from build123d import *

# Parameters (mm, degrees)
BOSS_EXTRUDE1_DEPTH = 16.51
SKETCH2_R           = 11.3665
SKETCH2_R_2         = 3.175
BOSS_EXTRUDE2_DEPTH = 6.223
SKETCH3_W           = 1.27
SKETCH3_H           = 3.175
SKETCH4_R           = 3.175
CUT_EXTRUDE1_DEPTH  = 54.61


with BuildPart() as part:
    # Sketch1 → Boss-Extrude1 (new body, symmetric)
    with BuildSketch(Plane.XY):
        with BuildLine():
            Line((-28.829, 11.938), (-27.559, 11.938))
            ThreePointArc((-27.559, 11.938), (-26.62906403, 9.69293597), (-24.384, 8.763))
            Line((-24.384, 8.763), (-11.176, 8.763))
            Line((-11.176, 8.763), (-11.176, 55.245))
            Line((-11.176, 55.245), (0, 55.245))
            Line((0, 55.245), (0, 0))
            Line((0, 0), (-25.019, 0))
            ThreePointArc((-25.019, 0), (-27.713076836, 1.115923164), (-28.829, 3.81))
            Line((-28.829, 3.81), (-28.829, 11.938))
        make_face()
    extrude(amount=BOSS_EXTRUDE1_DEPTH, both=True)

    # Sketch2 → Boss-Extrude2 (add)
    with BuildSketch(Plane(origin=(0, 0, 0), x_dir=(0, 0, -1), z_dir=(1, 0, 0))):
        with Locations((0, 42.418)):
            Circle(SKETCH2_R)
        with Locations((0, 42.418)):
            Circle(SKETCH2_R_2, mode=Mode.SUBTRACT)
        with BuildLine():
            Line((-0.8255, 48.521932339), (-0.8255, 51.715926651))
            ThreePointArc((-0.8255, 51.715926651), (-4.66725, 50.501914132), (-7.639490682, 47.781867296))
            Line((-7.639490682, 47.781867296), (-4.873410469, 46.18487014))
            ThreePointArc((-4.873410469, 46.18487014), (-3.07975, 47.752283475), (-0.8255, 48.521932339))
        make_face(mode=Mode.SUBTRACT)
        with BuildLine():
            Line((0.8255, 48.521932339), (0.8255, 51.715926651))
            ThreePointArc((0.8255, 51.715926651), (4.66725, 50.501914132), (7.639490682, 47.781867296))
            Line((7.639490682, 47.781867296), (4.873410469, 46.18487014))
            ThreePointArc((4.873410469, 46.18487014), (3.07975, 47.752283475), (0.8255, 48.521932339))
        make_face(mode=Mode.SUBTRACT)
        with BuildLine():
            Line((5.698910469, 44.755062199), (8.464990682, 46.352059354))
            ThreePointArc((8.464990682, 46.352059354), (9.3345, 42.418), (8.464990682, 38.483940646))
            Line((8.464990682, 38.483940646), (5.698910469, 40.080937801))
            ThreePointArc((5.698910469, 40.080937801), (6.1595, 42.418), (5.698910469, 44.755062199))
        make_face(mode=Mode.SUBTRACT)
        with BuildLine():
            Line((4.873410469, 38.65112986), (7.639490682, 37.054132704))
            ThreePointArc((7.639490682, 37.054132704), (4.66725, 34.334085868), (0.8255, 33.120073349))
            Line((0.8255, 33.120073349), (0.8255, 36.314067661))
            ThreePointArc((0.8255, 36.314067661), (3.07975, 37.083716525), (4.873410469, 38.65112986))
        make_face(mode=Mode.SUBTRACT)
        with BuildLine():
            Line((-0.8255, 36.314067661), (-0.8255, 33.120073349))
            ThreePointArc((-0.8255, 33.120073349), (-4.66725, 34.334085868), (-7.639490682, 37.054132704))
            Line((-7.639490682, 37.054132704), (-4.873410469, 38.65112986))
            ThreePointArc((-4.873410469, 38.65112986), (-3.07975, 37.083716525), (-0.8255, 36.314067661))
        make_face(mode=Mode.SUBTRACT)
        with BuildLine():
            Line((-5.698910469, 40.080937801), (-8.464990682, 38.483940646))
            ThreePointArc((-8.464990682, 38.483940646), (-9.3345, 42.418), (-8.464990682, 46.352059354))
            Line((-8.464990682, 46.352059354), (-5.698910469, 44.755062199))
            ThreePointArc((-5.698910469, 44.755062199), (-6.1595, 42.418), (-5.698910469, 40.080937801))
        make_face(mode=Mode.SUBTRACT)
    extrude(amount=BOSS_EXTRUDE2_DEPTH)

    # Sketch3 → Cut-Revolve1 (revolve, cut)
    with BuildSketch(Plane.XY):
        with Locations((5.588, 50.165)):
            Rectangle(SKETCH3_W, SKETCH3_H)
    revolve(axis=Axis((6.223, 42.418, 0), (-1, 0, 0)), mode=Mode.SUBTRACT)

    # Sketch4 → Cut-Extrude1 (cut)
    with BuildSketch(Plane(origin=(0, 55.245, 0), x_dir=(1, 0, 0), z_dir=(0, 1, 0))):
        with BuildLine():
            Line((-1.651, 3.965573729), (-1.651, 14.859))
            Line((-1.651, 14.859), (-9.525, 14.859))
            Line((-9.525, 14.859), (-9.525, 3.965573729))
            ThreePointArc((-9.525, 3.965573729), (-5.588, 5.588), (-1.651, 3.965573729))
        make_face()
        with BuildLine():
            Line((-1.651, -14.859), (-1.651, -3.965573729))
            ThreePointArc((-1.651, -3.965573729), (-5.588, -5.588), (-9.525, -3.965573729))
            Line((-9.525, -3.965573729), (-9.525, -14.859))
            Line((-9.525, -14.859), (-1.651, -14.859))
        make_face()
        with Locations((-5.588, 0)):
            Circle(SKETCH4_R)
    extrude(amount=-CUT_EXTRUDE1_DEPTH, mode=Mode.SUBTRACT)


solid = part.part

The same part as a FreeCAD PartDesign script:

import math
import FreeCAD as App
import Part
import Sketcher
from FreeCAD import Vector
Q = App.Units.Quantity


def add_polygon(sketch, points):
    """Adds a closed chain of lines whose ends are joined by coincident constraints."""
    first, n = sketch.GeometryCount, len(points)
    for a, b in zip(points, points[1:] + points[:1]):
        sketch.addGeometry(Part.LineSegment(App.Vector(*a, 0), App.Vector(*b, 0)), False)
    for i in range(n):
        sketch.addConstraint(Sketcher.Constraint("Coincident", first + i, 2, first + (i + 1) % n, 1))

doc = App.newDocument("Part")
body = doc.addObject("PartDesign::Body", "Body")

# Sketch on XY plane
sketch1 = body.newObject("Sketcher::SketchObject", "Sketch")
sketch1.AttachmentSupport = (doc.getObject("XY_Plane"), [""])
sketch1.MapMode = "FlatFace"
sketch1.addGeometry([
    Part.LineSegment(Vector(-27.6, 11.9, 0), Vector(-28.8, 11.9, 0)),  # 0
    Part.LineSegment(Vector(-28.8, 11.9, 0), Vector(-28.8, 3.8, 0)),  # 1
    Part.ArcOfCircle(Part.Circle(Vector(-25, 3.8, 0), Vector(0, 0, 1), 3.8), math.radians(-180), math.radians(-90)),  # 2
    Part.LineSegment(Vector(-25, 0, 0), Vector(0, 0, 0)),  # 3
    Part.LineSegment(Vector(0, 0, 0), Vector(0, 55.2, 0)),  # 4
    Part.LineSegment(Vector(0, 55.2, 0), Vector(-11.2, 55.2, 0)),  # 5
    Part.LineSegment(Vector(-11.2, 55.2, 0), Vector(-11.2, 8.8, 0)),  # 6
    Part.LineSegment(Vector(-11.2, 8.8, 0), Vector(-24.4, 8.8, 0)),  # 7
    Part.ArcOfCircle(Part.Circle(Vector(-24.4, 11.9, 0), Vector(0, 0, 1), 3.2), math.radians(-180), math.radians(-90)),  # 8
], False)
sketch1.addConstraint([
    Sketcher.Constraint("Coincident", 0, 2, 1, 1),
    Sketcher.Constraint("Tangent", 1, 2, 2, 1),
    Sketcher.Constraint("Tangent", 2, 2, 3, 1),
    Sketcher.Constraint("Coincident", 3, 2, 4, 1),
    Sketcher.Constraint("Coincident", 4, 2, 5, 1),
    Sketcher.Constraint("Coincident", 5, 2, 6, 1),
    Sketcher.Constraint("Coincident", 6, 2, 7, 1),
    Sketcher.Constraint("Tangent", 7, 2, 8, 2),
    Sketcher.Constraint("Coincident", 8, 1, 0, 1),
    Sketcher.Constraint("Horizontal", 0),
    Sketcher.Constraint("Vertical", 1),
    Sketcher.Constraint("Horizontal", 3),
    Sketcher.Constraint("Vertical", 4),
    Sketcher.Constraint("Horizontal", 5),
    Sketcher.Constraint("Vertical", 6),
    Sketcher.Constraint("Horizontal", 7),
    Sketcher.Constraint("Coincident", 3, 2, -1, 1),
    Sketcher.Constraint("Horizontal", 8, 3, 0, 2),
    Sketcher.Constraint("Radius", 2, Q("0.15 in")),
    Sketcher.Constraint("Radius", 8, Q("0.125 in")),
    Sketcher.Constraint("DistanceX", 0, 2, 0, 1, Q("0.05 in")),
    Sketcher.Constraint("DistanceX", 5, 2, 5, 1, Q("0.44 in")),
    Sketcher.Constraint("DistanceX", 7, 2, 7, 1, Q("0.52 in")),
    Sketcher.Constraint("DistanceY", 1, 2, 1, 1, Q("0.32 in")),
    Sketcher.Constraint("DistanceY", 6, 2, 6, 1, Q("1.83 in")),
])
pad1 = body.newObject("PartDesign::Pad", "Pad")
pad1.Profile = sketch1
pad1.Length = Q("1.3 in")
pad1.Midplane = True

# Sketch on YZ plane
sketch2 = body.newObject("Sketcher::SketchObject", "Sketch001")
sketch2.AttachmentSupport = (doc.getObject("YZ_Plane"), [""])
sketch2.MapMode = "FlatFace"
sketch2.addGeometry([
    Part.Circle(Vector(42.4, 0, 0), Vector(0, 0, 1), 11.4),  # 0
    Part.ArcOfCircle(Part.Circle(Vector(42.4, 0, 0), Vector(0, 0, 1), 6.2), math.radians(128), math.radians(172)),  # 1
    Part.LineSegment(Vector(36.3, 0.8, 0), Vector(33.1, 0.8, 0)),  # 2
    Part.ArcOfCircle(Part.Circle(Vector(42.4, 0, 0), Vector(0, 0, 1), 9.3), math.radians(125), math.radians(175)),  # 3
    Part.LineSegment(Vector(37.1, 7.6, 0), Vector(38.7, 4.9, 0)),  # 4
    Part.ArcOfCircle(Part.Circle(Vector(42.4, 0, 0), Vector(0, 0, 1), 6.2), math.radians(-172), math.radians(-128)),  # 5
    Part.LineSegment(Vector(38.7, -4.9, 0), Vector(37.1, -7.6, 0)),  # 6
    Part.ArcOfCircle(Part.Circle(Vector(42.4, 0, 0), Vector(0, 0, 1), 9.3), math.radians(-175), math.radians(-125)),  # 7
    Part.LineSegment(Vector(33.1, -0.8, 0), Vector(36.3, -0.8, 0)),  # 8
    Part.ArcOfCircle(Part.Circle(Vector(42.4, 0, 0), Vector(0, 0, 1), 6.2), math.radians(68), math.radians(112)),  # 9
    Part.LineSegment(Vector(40.1, 5.7, 0), Vector(38.5, 8.5, 0)),  # 10
    Part.ArcOfCircle(Part.Circle(Vector(42.4, 0, 0), Vector(0, 0, 1), 9.3), math.radians(65), math.radians(115)),  # 11
    Part.LineSegment(Vector(46.4, 8.5, 0), Vector(44.8, 5.7, 0)),  # 12
    Part.LineSegment(Vector(51.7, 0.8, 0), Vector(48.5, 0.8, 0)),  # 13
    Part.ArcOfCircle(Part.Circle(Vector(42.4, 0, 0), Vector(0, 0, 1), 6.2), math.radians(8), math.radians(52)),  # 14
    Part.LineSegment(Vector(46.2, 4.9, 0), Vector(47.8, 7.6, 0)),  # 15
    Part.ArcOfCircle(Part.Circle(Vector(42.4, 0, 0), Vector(0, 0, 1), 9.3), math.radians(5), math.radians(55)),  # 16
    Part.Circle(Vector(42.4, 0, 0), Vector(0, 0, 1), 3.2),  # 17
    Part.ArcOfCircle(Part.Circle(Vector(42.4, 0, 0), Vector(0, 0, 1), 6.2), math.radians(-112), math.radians(-68)),  # 18
    Part.LineSegment(Vector(44.8, -5.7, 0), Vector(46.4, -8.5, 0)),  # 19
    Part.ArcOfCircle(Part.Circle(Vector(42.4, 0, 0), Vector(0, 0, 1), 9.3), math.radians(-115), math.radians(-65)),  # 20
    Part.LineSegment(Vector(38.5, -8.5, 0), Vector(40.1, -5.7, 0)),  # 21
    Part.ArcOfCircle(Part.Circle(Vector(42.4, 0, 0), Vector(0, 0, 1), 6.2), math.radians(-52), math.radians(-8)),  # 22
    Part.LineSegment(Vector(48.5, -0.8, 0), Vector(51.7, -0.8, 0)),  # 23
    Part.ArcOfCircle(Part.Circle(Vector(42.4, 0, 0), Vector(0, 0, 1), 9.3), math.radians(-55), math.radians(-5)),  # 24
    Part.LineSegment(Vector(47.8, -7.6, 0), Vector(46.2, -4.9, 0)),  # 25
], False)
sketch2.addConstraint([
    Sketcher.Constraint("Coincident", 1, 2, 2, 1),
    Sketcher.Constraint("Coincident", 2, 2, 3, 2),
    Sketcher.Constraint("Coincident", 3, 1, 4, 1),
    Sketcher.Constraint("Coincident", 4, 2, 1, 1),
    Sketcher.Constraint("Coincident", 5, 2, 6, 1),
    Sketcher.Constraint("Coincident", 6, 2, 7, 2),
    Sketcher.Constraint("Coincident", 7, 1, 8, 1),
    Sketcher.Constraint("Coincident", 8, 2, 5, 1),
    Sketcher.Constraint("Coincident", 9, 2, 10, 1),
    Sketcher.Constraint("Coincident", 10, 2, 11, 2),
    Sketcher.Constraint("Coincident", 11, 1, 12, 1),
    Sketcher.Constraint("Coincident", 12, 2, 9, 1),
    Sketcher.Constraint("Coincident", 13, 2, 14, 1),
    Sketcher.Constraint("Coincident", 14, 2, 15, 1),
    Sketcher.Constraint("Coincident", 15, 2, 16, 2),
    Sketcher.Constraint("Coincident", 16, 1, 13, 1),
    Sketcher.Constraint("Coincident", 18, 2, 19, 1),
    Sketcher.Constraint("Coincident", 19, 2, 20, 2),
    Sketcher.Constraint("Coincident", 20, 1, 21, 1),
    Sketcher.Constraint("Coincident", 21, 2, 18, 1),
    Sketcher.Constraint("Coincident", 22, 2, 23, 1),
    Sketcher.Constraint("Coincident", 23, 2, 24, 2),
    Sketcher.Constraint("Coincident", 24, 1, 25, 1),
    Sketcher.Constraint("Coincident", 25, 2, 22, 1),
    Sketcher.Constraint("Horizontal", 2),
    Sketcher.Constraint("Horizontal", 8),
    Sketcher.Constraint("Horizontal", 13),
    Sketcher.Constraint("Horizontal", 23),
    Sketcher.Constraint("Coincident", 1, 3, 0, 3),
    Sketcher.Constraint("Coincident", 3, 3, 0, 3),
    Sketcher.Constraint("Coincident", 5, 3, 0, 3),
    Sketcher.Constraint("Coincident", 7, 3, 0, 3),
    Sketcher.Constraint("Coincident", 9, 3, 0, 3),
    Sketcher.Constraint("Coincident", 11, 3, 0, 3),
    Sketcher.Constraint("Coincident", 14, 3, 0, 3),
    Sketcher.Constraint("Coincident", 16, 3, 0, 3),
    Sketcher.Constraint("Coincident", 17, 3, 0, 3),
    Sketcher.Constraint("Coincident", 18, 3, 0, 3),
    Sketcher.Constraint("Coincident", 20, 3, 0, 3),
    Sketcher.Constraint("Coincident", 22, 3, 0, 3),
    Sketcher.Constraint("Coincident", 24, 3, 0, 3),
    Sketcher.Constraint("Equal", 1, 5),
    Sketcher.Constraint("Equal", 3, 7),
    Sketcher.Constraint("Equal", 5, 9),
    Sketcher.Constraint("Equal", 7, 11),
    Sketcher.Constraint("Equal", 9, 14),
    Sketcher.Constraint("Equal", 11, 16),
    Sketcher.Constraint("Equal", 14, 18),
    Sketcher.Constraint("Equal", 16, 20),
    Sketcher.Constraint("Equal", 18, 22),
    Sketcher.Constraint("Equal", 20, 24),
    Sketcher.Constraint("Symmetric", 4, 2, 5, 2, -1),
    Sketcher.Constraint("Parallel", 4, 10),
    Sketcher.Constraint("Parallel", 6, 12),
    Sketcher.Constraint("Parallel", 12, 15),
    Sketcher.Constraint("Parallel", 10, 19),
    Sketcher.Constraint("Parallel", 15, 21),
    Sketcher.Constraint("Parallel", 19, 25),
    Sketcher.Constraint("Horizontal", 10, 2, 11, 1),
    Sketcher.Constraint("Horizontal", 9, 2, 12, 2),
    Sketcher.Constraint("Horizontal", 2, 2, 13, 2),
    Sketcher.Constraint("Horizontal", 4, 2, 14, 2),
    Sketcher.Constraint("Horizontal", 19, 2, 20, 1),
    Sketcher.Constraint("Horizontal", 8, 2, 22, 2),
    Sketcher.Constraint("Horizontal", 6, 2, 24, 1),
    Sketcher.Constraint("Vertical", 2, 2, 7, 1),
    Sketcher.Constraint("Vertical", 12, 2, 18, 2),
    Sketcher.Constraint("Equal", 6, 10),
    Sketcher.Constraint("Diameter", 17, Q("0.25 in")),
    Sketcher.Constraint("Diameter", 0, Q("0.895 in")),
    Sketcher.Constraint("Angle", 4, Q("-60 deg")),
    Sketcher.Constraint("Radius", 1, Q("0.2425 in")),
    Sketcher.Constraint("Radius", 3, Q("0.3675 in")),
    Sketcher.Constraint("DistanceX", -1, 1, 0, 3, Q("1.67 in")),
    Sketcher.Constraint("DistanceY", 7, 1, 2, 2, Q("0.065 in")),
    Sketcher.Constraint("DistanceY", 4, 2, 9, 2, Q("0.0325 in")),
])
pad2 = body.newObject("PartDesign::Pad", "Pad001")
pad2.Profile = sketch2
pad2.Length = Q("0.245 in")

# Sketch on XY plane
sketch3 = body.newObject("Sketcher::SketchObject", "Sketch002")
sketch3.AttachmentSupport = (doc.getObject("XY_Plane"), [""])
sketch3.MapMode = "FlatFace"
add_polygon(sketch3, [(5, 51.8), (5, 48.6), (6.2, 48.6), (6.2, 51.8)])  # lines 0-3
sketch3.addGeometry(Part.LineSegment(Vector(6.2, 42.4, 0), Vector(5, 42.4, 0)), True)  # axis
sketch3.addConstraint([
    Sketcher.Constraint("Vertical", 0),
    Sketcher.Constraint("Horizontal", 1),
    Sketcher.Constraint("Vertical", 2),
    Sketcher.Constraint("Horizontal", 3),
    Sketcher.Constraint("Horizontal", 4),
    Sketcher.Constraint("Vertical", 2, 2, 4, 1),
    Sketcher.Constraint("Vertical", 3, 2, 4, 2),
    Sketcher.Constraint("DistanceX", 1, 1, 1, 2, Q("0.05 in")),
    Sketcher.Constraint("DistanceY", 0, 2, 0, 1, Q("0.125 in")),
    Sketcher.Constraint("DistanceY", -1, 1, 4, 1, Q("1.67 in")),
    Sketcher.Constraint("DistanceX", -1, 1, 0, 2, Q("0.195 in")),
    Sketcher.Constraint("DistanceY", -1, 1, 0, 2, Q("1.9125 in")),
])
groove = body.newObject("PartDesign::Groove", "Groove")
groove.Profile = sketch3
groove.ReferenceAxis = (sketch3, ["Axis0"])
groove.Angle = 360

# Sketch on XZ plane
sketch4 = body.newObject("Sketcher::SketchObject", "Sketch003")
sketch4.AttachmentSupport = (doc.getObject("XZ_Plane"), [""])
sketch4.MapMode = "FlatFace"
sketch4.AttachmentOffset = App.Placement(Vector(0, 0, -2.175 * 25.4), App.Rotation())
sketch4.addGeometry([
    Part.LineSegment(Vector(-1.7, -4, 0), Vector(-1.7, -14.9, 0)),  # 0
    Part.LineSegment(Vector(-1.7, -14.9, 0), Vector(-9.5, -14.9, 0)),  # 1
    Part.LineSegment(Vector(-9.5, -14.9, 0), Vector(-9.5, -4, 0)),  # 2
    Part.ArcOfCircle(Part.Circle(Vector(-5.6, 0, 0), Vector(0, 0, 1), 5.6), math.radians(-135), math.radians(-45)),  # 3
    Part.LineSegment(Vector(-1.7, 14.9, 0), Vector(-1.7, 4, 0)),  # 4
    Part.ArcOfCircle(Part.Circle(Vector(-5.6, 0, 0), Vector(0, 0, 1), 5.6), math.radians(45), math.radians(135)),  # 5
    Part.LineSegment(Vector(-9.5, 4, 0), Vector(-9.5, 14.9, 0)),  # 6
    Part.LineSegment(Vector(-9.5, 14.9, 0), Vector(-1.7, 14.9, 0)),  # 7
    Part.Circle(Vector(-5.6, 0, 0), Vector(0, 0, 1), 3.2),  # 8
], False)
sketch4.addConstraint([
    Sketcher.Constraint("Coincident", 0, 2, 1, 1),
    Sketcher.Constraint("Coincident", 1, 2, 2, 1),
    Sketcher.Constraint("Coincident", 2, 2, 3, 1),
    Sketcher.Constraint("Coincident", 3, 2, 0, 1),
    Sketcher.Constraint("Coincident", 4, 2, 5, 1),
    Sketcher.Constraint("Coincident", 5, 2, 6, 1),
    Sketcher.Constraint("Coincident", 6, 2, 7, 1),
    Sketcher.Constraint("Coincident", 7, 2, 4, 1),
    Sketcher.Constraint("Vertical", 0),
    Sketcher.Constraint("Horizontal", 1),
    Sketcher.Constraint("Vertical", 2),
    Sketcher.Constraint("Vertical", 4),
    Sketcher.Constraint("Vertical", 6),
    Sketcher.Constraint("Horizontal", 7),
    Sketcher.Constraint("Coincident", 5, 3, 3, 3),
    Sketcher.Constraint("Coincident", 8, 3, 3, 3),
    Sketcher.Constraint("Equal", 3, 5),
    Sketcher.Constraint("Symmetric", 3, 2, 4, 2, -1),
    Sketcher.Constraint("Symmetric", 1, 2, 6, 2, -1),
    Sketcher.Constraint("Horizontal", 2, 2, 3, 2),
    Sketcher.Constraint("Diameter", 8, Q("0.25 in")),
    Sketcher.Constraint("Radius", 3, Q("0.22 in")),
    Sketcher.Constraint("DistanceX", 1, 2, 1, 1, Q("0.31 in")),
    Sketcher.Constraint("DistanceX", 3, 3, -1, 1, Q("0.22 in")),
    Sketcher.Constraint("DistanceY", 0, 2, -1, 1, Q("0.585 in")),
])
pocket1 = body.newObject("PartDesign::Pocket", "Pocket")
pocket1.Profile = sketch4
pocket1.Length = Q("2.15 in")
pocket1.Reversed = True

doc.recompute()
